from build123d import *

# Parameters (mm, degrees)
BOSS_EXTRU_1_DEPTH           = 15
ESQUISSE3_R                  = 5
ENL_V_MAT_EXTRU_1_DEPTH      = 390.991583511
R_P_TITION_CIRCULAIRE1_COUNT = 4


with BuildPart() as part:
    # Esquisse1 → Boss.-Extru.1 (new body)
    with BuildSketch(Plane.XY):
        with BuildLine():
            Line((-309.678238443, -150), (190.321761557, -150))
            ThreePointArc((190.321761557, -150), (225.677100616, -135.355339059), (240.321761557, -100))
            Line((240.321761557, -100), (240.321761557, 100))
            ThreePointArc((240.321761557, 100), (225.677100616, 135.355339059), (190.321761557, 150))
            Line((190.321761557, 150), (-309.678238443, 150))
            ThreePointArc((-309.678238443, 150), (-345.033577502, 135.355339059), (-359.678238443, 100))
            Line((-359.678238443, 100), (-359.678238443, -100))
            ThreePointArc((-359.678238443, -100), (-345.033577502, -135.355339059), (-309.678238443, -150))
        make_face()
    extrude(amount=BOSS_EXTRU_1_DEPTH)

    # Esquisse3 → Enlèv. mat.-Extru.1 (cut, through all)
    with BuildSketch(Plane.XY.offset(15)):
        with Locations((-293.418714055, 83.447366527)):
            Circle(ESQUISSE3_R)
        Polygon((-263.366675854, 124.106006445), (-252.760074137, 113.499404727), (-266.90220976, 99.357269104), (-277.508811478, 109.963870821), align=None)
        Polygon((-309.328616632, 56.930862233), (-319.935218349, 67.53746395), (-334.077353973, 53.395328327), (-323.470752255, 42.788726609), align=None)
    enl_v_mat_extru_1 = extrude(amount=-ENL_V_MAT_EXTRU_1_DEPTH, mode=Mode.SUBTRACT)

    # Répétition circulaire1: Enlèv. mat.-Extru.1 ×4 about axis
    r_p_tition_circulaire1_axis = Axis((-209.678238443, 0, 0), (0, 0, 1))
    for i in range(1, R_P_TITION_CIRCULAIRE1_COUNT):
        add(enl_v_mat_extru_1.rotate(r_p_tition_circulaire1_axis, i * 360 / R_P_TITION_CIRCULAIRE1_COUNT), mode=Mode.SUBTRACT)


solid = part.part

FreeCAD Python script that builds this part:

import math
import FreeCAD as App
import Part
import Sketcher
from FreeCAD import Vector
Q = App.Units.Quantity


def add_polygon(sketch, points):
    """Adds a closed chain of lines whose ends are joined by coincident constraints."""
    first, n = sketch.GeometryCount, len(points)
    for a, b in zip(points, points[1:] + points[:1]):
        sketch.addGeometry(Part.LineSegment(App.Vector(*a, 0), App.Vector(*b, 0)), False)
    for i in range(n):
        sketch.addConstraint(Sketcher.Constraint("Coincident", first + i, 2, first + (i + 1) % n, 1))

doc = App.newDocument("Part")
body = doc.addObject("PartDesign::Body", "Body")

sketch1 = doc.addObject("Sketcher::SketchObject", "Sketch")
body.addObject(sketch1)
sketch1.AttachmentSupport = (doc.XY_Plane, [""])
sketch1.MapMode = "FlatFace"
sketch1.addGeometry([
    Part.LineSegment(Vector(-309.678238, -150, 0), Vector(190.321762, -150, 0)),
    Part.ArcOfCircle(Part.Circle(Vector(190.321762, -100, 0), Vector(0, 0, 1), 50), math.radians(-90), math.radians(0)),
    Part.LineSegment(Vector(240.321762, -100, 0), Vector(240.321762, 100, 0)),
    Part.ArcOfCircle(Part.Circle(Vector(190.321762, 100, 0), Vector(0, 0, 1), 50), math.radians(0), math.radians(90)),
    Part.LineSegment(Vector(190.321762, 150, 0), Vector(-309.678238, 150, 0)),
    Part.ArcOfCircle(Part.Circle(Vector(-309.678238, 100, 0), Vector(0, 0, 1), 50), math.radians(90), math.radians(180)),
    Part.LineSegment(Vector(-359.678238, 100, 0), Vector(-359.678238, -100, 0)),
    Part.ArcOfCircle(Part.Circle(Vector(-309.678238, -100, 0), Vector(0, 0, 1), 50), math.radians(-180), math.radians(-90)),
], False)
sketch1.addConstraint([
    Sketcher.Constraint("Tangent", 0, 2, 1, 1),
    Sketcher.Constraint("Tangent", 1, 2, 2, 1),
    Sketcher.Constraint("Tangent", 2, 2, 3, 1),
    Sketcher.Constraint("Tangent", 3, 2, 4, 1),
    Sketcher.Constraint("Tangent", 4, 2, 5, 1),
    Sketcher.Constraint("Tangent", 5, 2, 6, 1),
    Sketcher.Constraint("Tangent", 6, 2, 7, 1),
    Sketcher.Constraint("Tangent", 7, 2, 0, 1),
    Sketcher.Constraint("Horizontal", 0),
    Sketcher.Constraint("Vertical", 2),
    Sketcher.Constraint("Horizontal", 4),
    Sketcher.Constraint("Vertical", 6),
    Sketcher.Constraint("Equal", 1, 3),
    Sketcher.Constraint("Equal", 3, 5),
    Sketcher.Constraint("Equal", 5, 7),
    Sketcher.Constraint("Radius", 1, Q("50 mm")),
    Sketcher.Constraint("DistanceX", 0, 1, 0, 2, Q("500 mm")),
    Sketcher.Constraint("DistanceY", 2, 1, 2, 2, Q("200 mm")),
    Sketcher.Constraint("DistanceY", 1, 3, -1, 1, Q("100 mm")),
    Sketcher.Constraint("DistanceX", -1, 1, 1, 3, Q("190.321762 mm")),
])
pad1 = doc.addObject("PartDesign::Pad", "Pad")
body.addObject(pad1)
pad1.Profile = sketch1
pad1.Length = 15

sketch2 = doc.addObject("Sketcher::SketchObject", "Sketch001")
body.addObject(sketch2)
sketch2.AttachmentSupport = (doc.XY_Plane, [""])
sketch2.MapMode = "FlatFace"
sketch2.AttachmentOffset = App.Placement(Vector(0, 0, 15), App.Rotation())
sketch2.addGeometry(Part.Circle(Vector(-293.418714, 83.447367, 0), Vector(0, 0, 1), 5), False)
add_polygon(sketch2, [(-252.760074, 113.499405), (-263.366676, 124.106006), (-277.508811, 109.963871), (-266.90221, 99.357269)])
add_polygon(sketch2, [(-309.328617, 56.930862), (-319.935218, 67.537464), (-334.077354, 53.395328), (-323.470752, 42.788727)])
sketch2.addConstraint([
    Sketcher.Constraint("Perpendicular", 1, 2),
    Sketcher.Constraint("Perpendicular", 2, 3),
    Sketcher.Constraint("Perpendicular", 3, 4),
    Sketcher.Constraint("Perpendicular", 4, 5),
    Sketcher.Constraint("Perpendicular", 5, 6),
    Sketcher.Constraint("Perpendicular", 6, 7),
    Sketcher.Constraint("Perpendicular", 7, 8),
    Sketcher.Constraint("Equal", 3, 5),
    Sketcher.Constraint("Equal", 4, 6),
    Sketcher.Constraint("Diameter", 0, Q("10 mm")),
    Sketcher.Constraint("Angle", 1, Q("135 deg")),
    Sketcher.Constraint("Distance", 1, Q("15 mm")),
    Sketcher.Constraint("Distance", 2, Q("20 mm")),
    Sketcher.Constraint("DistanceX", 2, 2, -1, 1, Q("277.508811 mm")),
    Sketcher.Constraint("DistanceY", -1, 1, 2, 2, Q("109.963871 mm")),
    Sketcher.Constraint("DistanceX", 5, 2, -1, 1, Q("319.935218 mm")),
    Sketcher.Constraint("DistanceY", -1, 1, 6, 2, Q("53.395328 mm")),
    Sketcher.Constraint("DistanceX", 0, 3, 1, 2, Q("30.052038 mm")),
    Sketcher.Constraint("DistanceY", 0, 3, 1, 2, Q("40.65864 mm")),
])
pocket1 = doc.addObject("PartDesign::Pocket", "Pocket")
body.addObject(pocket1)
pocket1.Profile = sketch2
pocket1.Type = "ThroughAll"
doc.recompute()

datumline = doc.addObject("PartDesign::Line", "DatumLine")
body.addObject(datumline)
datumline.Placement = App.Placement(Vector(-209.678238, 0, 0), App.Rotation(Vector(0, 0, 1), Vector(0, 0, 1)))
polarpattern = doc.addObject("PartDesign::PolarPattern", "PolarPattern")
body.addObject(polarpattern)
polarpattern.Originals = [pocket1]
polarpattern.Axis = (datumline, [""])
polarpattern.Angle = 360
polarpattern.Occurrences = 4
body.Tip = polarpattern

doc.recompute()
